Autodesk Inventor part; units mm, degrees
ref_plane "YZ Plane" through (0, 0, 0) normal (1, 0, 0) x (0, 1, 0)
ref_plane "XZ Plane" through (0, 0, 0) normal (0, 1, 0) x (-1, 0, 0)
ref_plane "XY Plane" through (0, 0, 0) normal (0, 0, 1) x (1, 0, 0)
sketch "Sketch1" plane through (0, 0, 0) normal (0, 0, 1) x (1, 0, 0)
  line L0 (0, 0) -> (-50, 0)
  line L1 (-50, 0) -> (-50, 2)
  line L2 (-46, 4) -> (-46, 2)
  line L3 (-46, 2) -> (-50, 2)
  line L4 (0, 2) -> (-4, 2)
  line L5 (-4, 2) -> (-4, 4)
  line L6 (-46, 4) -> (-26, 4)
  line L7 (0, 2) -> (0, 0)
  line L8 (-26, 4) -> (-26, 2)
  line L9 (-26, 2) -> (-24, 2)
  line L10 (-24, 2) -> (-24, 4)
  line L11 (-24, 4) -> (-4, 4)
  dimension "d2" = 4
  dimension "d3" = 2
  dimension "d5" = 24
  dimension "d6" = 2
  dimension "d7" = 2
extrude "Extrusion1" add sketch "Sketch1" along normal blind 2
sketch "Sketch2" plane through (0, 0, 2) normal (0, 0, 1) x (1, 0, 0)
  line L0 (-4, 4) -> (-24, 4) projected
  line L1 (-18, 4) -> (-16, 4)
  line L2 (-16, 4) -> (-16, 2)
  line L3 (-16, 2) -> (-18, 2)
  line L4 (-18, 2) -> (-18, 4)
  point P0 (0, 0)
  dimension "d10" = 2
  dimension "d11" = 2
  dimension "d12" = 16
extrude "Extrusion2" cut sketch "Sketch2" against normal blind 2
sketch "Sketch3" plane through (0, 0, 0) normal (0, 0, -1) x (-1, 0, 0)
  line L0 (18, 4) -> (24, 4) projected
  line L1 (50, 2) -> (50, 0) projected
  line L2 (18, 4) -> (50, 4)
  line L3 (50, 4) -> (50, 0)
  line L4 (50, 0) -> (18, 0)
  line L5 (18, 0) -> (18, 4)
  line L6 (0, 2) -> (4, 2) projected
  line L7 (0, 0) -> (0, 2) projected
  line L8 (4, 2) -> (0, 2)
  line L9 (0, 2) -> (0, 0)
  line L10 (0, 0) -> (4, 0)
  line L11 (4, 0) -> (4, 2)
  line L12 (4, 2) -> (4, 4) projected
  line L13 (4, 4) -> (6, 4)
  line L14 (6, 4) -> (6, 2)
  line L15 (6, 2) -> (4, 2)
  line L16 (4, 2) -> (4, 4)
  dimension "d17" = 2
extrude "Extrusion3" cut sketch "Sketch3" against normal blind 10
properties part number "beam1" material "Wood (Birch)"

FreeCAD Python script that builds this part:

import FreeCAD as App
import Part
import Sketcher
Q = App.Units.Quantity


def add_polygon(sketch, points):
    """Adds a closed chain of lines whose ends are joined by coincident constraints."""
    first, n = sketch.GeometryCount, len(points)
    for a, b in zip(points, points[1:] + points[:1]):
        sketch.addGeometry(Part.LineSegment(App.Vector(*a, 0), App.Vector(*b, 0)), False)
    for i in range(n):
        sketch.addConstraint(Sketcher.Constraint("Coincident", first + i, 2, first + (i + 1) % n, 1))

doc = App.newDocument("Part")
body = doc.addObject("PartDesign::Body", "Body")

# Sketch on XY plane
sketch1 = body.newObject("Sketcher::SketchObject", "Sketch")
sketch1.AttachmentSupport = (doc.getObject("XY_Plane"), [""])
sketch1.MapMode = "FlatFace"
add_polygon(sketch1, [(-50, 0), (0, 0), (0, 2), (-4, 2), (-4, 4), (-24, 4), (-24, 2), (-26, 2), (-26, 4), (-46, 4), (-46, 2), (-50, 2)])  # lines 0-11
sketch1.addConstraint(Sketcher.Constraint("Horizontal", 0))
sketch1.addConstraint(Sketcher.Constraint("Vertical", 1))
sketch1.addConstraint(Sketcher.Constraint("Horizontal", 2))
sketch1.addConstraint(Sketcher.Constraint("Vertical", 3))
sketch1.addConstraint(Sketcher.Constraint("Horizontal", 4))
sketch1.addConstraint(Sketcher.Constraint("Vertical", 5))
sketch1.addConstraint(Sketcher.Constraint("Horizontal", 6))
sketch1.addConstraint(Sketcher.Constraint("Vertical", 7))
sketch1.addConstraint(Sketcher.Constraint("Horizontal", 8))
sketch1.addConstraint(Sketcher.Constraint("Vertical", 9))
sketch1.addConstraint(Sketcher.Constraint("Horizontal", 10))
sketch1.addConstraint(Sketcher.Constraint("Vertical", 11))
sketch1.addConstraint(Sketcher.Constraint("Coincident", 0, 2, -1, 1))
sketch1.addConstraint(Sketcher.Constraint("Horizontal", 2, 2, 5, 2))
sketch1.addConstraint(Sketcher.Constraint("Horizontal", 4, 2, 7, 2))
sketch1.addConstraint(Sketcher.Constraint("Horizontal", 6, 2, 9, 2))
sketch1.addConstraint(Sketcher.Constraint("Equal", 4, 8))
sketch1.addConstraint(Sketcher.Constraint("Equal", 2, 10))
sketch1.addConstraint(Sketcher.Constraint("Equal", 6, 1))
sketch1.addConstraint(Sketcher.Constraint("Equal", 1, 3))
sketch1.addConstraint(Sketcher.Constraint("DistanceX", 2, 2, 2, 1, Q("4 mm")))
sketch1.addConstraint(Sketcher.Constraint("DistanceX", 6, 2, 6, 1, Q("2 mm")))
sketch1.addConstraint(Sketcher.Constraint("DistanceX", 4, 2, -1, 1, Q("24 mm")))
pad1 = body.newObject("PartDesign::Pad", "Pad")
pad1.Profile = sketch1
pad1.Length = 2

# Sketch on XY plane
sketch2 = body.newObject("Sketcher::SketchObject", "Sketch001")
sketch2.AttachmentSupport = (doc.getObject("XY_Plane"), [""])
sketch2.MapMode = "FlatFace"
sketch2.AttachmentOffset = App.Placement(App.Vector(0, 0, 2), App.Rotation())
add_polygon(sketch2, [(-16, 2), (-16, 4), (-18, 4), (-18, 2)])  # lines 0-3
sketch2.addConstraint(Sketcher.Constraint("Vertical", 0))
sketch2.addConstraint(Sketcher.Constraint("Horizontal", 1))
sketch2.addConstraint(Sketcher.Constraint("Vertical", 2))
sketch2.addConstraint(Sketcher.Constraint("Horizontal", 3))
sketch2.addConstraint(Sketcher.Constraint("Equal", 3, 0))
sketch2.addConstraint(Sketcher.Constraint("DistanceX", 1, 2, 1, 1, Q("2 mm")))
sketch2.addConstraint(Sketcher.Constraint("DistanceX", 0, 2, -1, 1, Q("16 mm")))
sketch2.addConstraint(Sketcher.Constraint("DistanceY", -1, 1, 2, 2, Q("2 mm")))
pocket1 = body.newObject("PartDesign::Pocket", "Pocket")
pocket1.Profile = sketch2
pocket1.Length = 2

# Sketch on XY plane
sketch3 = body.newObject("Sketcher::SketchObject", "Sketch002")
sketch3.AttachmentSupport = (doc.getObject("XY_Plane"), [""])
sketch3.MapMode = "FlatFace"
add_polygon(sketch3, [(-50, 4), (-18, 4), (-18, 0), (-50, 0)])  # lines 0-3
add_polygon(sketch3, [(-4, 4), (-4, 2), (-6, 2), (-6, 4)])  # lines 4-7
add_polygon(sketch3, [(-4, 2), (0, 2), (0, 0), (-4, 0)])  # lines 8-11
sketch3.addConstraint(Sketcher.Constraint("Horizontal", 0))
sketch3.addConstraint(Sketcher.Constraint("Vertical", 1))
sketch3.addConstraint(Sketcher.Constraint("Horizontal", 2))
sketch3.addConstraint(Sketcher.Constraint("Vertical", 3))
sketch3.addConstraint(Sketcher.Constraint("Vertical", 4))
sketch3.addConstraint(Sketcher.Constraint("Horizontal", 5))
sketch3.addConstraint(Sketcher.Constraint("Vertical", 6))
sketch3.addConstraint(Sketcher.Constraint("Horizontal", 7))
sketch3.addConstraint(Sketcher.Constraint("Horizontal", 8))
sketch3.addConstraint(Sketcher.Constraint("Vertical", 9))
sketch3.addConstraint(Sketcher.Constraint("Horizontal", 10))
sketch3.addConstraint(Sketcher.Constraint("Vertical", 11))
sketch3.addConstraint(Sketcher.Constraint("Coincident", 9, 2, -1, 1))
sketch3.addConstraint(Sketcher.Constraint("Coincident", 11, 2, 4, 2))
sketch3.addConstraint(Sketcher.Constraint("PointOnObject", 1, 2, -1))
sketch3.addConstraint(Sketcher.Constraint("Horizontal", 3, 2, 6, 2))
sketch3.addConstraint(Sketcher.Constraint("Equal", 10, 1))
sketch3.addConstraint(Sketcher.Constraint("Equal", 7, 4))
sketch3.addConstraint(Sketcher.Constraint("Equal", 6, 9))
sketch3.addConstraint(Sketcher.Constraint("DistanceX", 5, 2, 5, 1, Q("2 mm")))
sketch3.addConstraint(Sketcher.Constraint("DistanceX", 0, 1, 0, 2, Q("32 mm")))
sketch3.addConstraint(Sketcher.Constraint("DistanceX", 0, 2, -1, 1, Q("18 mm")))
pocket2 = body.newObject("PartDesign::Pocket", "Pocket001")
pocket2.Profile = sketch3
pocket2.Length = 10
pocket2.Reversed = True

doc.recompute()
